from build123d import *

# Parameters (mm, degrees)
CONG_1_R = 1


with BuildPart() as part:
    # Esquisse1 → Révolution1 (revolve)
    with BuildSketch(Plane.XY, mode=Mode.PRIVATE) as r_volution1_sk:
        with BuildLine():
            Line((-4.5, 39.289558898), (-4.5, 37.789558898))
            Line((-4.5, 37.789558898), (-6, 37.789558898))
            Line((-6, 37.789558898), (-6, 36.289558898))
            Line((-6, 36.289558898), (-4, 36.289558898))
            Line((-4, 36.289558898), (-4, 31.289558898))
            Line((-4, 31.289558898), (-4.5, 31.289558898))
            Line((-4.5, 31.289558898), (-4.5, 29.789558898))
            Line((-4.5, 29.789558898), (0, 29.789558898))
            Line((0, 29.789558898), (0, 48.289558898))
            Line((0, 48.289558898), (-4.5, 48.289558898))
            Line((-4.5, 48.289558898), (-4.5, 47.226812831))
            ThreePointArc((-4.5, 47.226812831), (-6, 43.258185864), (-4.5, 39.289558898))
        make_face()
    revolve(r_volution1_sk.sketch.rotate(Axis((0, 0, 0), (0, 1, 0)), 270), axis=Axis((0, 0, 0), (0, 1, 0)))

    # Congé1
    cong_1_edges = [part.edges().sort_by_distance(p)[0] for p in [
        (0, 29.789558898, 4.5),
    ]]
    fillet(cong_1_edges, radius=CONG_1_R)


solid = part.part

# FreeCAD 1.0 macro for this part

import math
import FreeCAD as App
import Part
import Sketcher
Q = App.Units.Quantity


def edges_at(feature, points):
    """Names of the edges that pass closest to the given points."""
    edges = feature.Shape.Edges
    near = lambda p: min(range(len(edges)), key=lambda i: edges[i].distToShape(Part.Vertex(*p))[0])
    return sorted({f"Edge{near(p) + 1}" for p in points})

doc = App.newDocument("Part")
body = doc.addObject("PartDesign::Body", "Body")

sketch1 = body.newObject("Sketcher::SketchObject", "Sketch")
sketch1.AttachmentSupport = (doc.getObject("XY_Plane"), [""])
sketch1.MapMode = "FlatFace"
sketch1.addGeometry([
    Part.LineSegment(App.Vector(-4.5, 39.3, 0), App.Vector(-4.5, 37.8, 0)),
    Part.LineSegment(App.Vector(-4.5, 37.8, 0), App.Vector(-6, 37.8, 0)),
    Part.LineSegment(App.Vector(-6, 37.8, 0), App.Vector(-6, 36.3, 0)),
    Part.LineSegment(App.Vector(-6, 36.3, 0), App.Vector(-4, 36.3, 0)),
    Part.LineSegment(App.Vector(-4, 36.3, 0), App.Vector(-4, 31.3, 0)),
    Part.LineSegment(App.Vector(-4, 31.3, 0), App.Vector(-4.5, 31.3, 0)),
    Part.LineSegment(App.Vector(-4.5, 31.3, 0), App.Vector(-4.5, 29.8, 0)),
    Part.LineSegment(App.Vector(-4.5, 29.8, 0), App.Vector(0, 29.8, 0)),
    Part.LineSegment(App.Vector(0, 29.8, 0), App.Vector(0, 48.3, 0)),
    Part.LineSegment(App.Vector(0, 48.3, 0), App.Vector(-4.5, 48.3, 0)),
    Part.LineSegment(App.Vector(-4.5, 48.3, 0), App.Vector(-4.5, 47.2, 0)),
    Part.ArcOfCircle(Part.Circle(App.Vector(0, 43.3, 0), App.Vector(0, 0, 1), 6), math.radians(139), math.radians(221)),
], False)
sketch1.addConstraint([
    Sketcher.Constraint("Coincident", 0, 2, 1, 1),
    Sketcher.Constraint("Coincident", 1, 2, 2, 1),
    Sketcher.Constraint("Coincident", 2, 2, 3, 1),
    Sketcher.Constraint("Coincident", 3, 2, 4, 1),
    Sketcher.Constraint("Coincident", 4, 2, 5, 1),
    Sketcher.Constraint("Coincident", 5, 2, 6, 1),
    Sketcher.Constraint("Coincident", 6, 2, 7, 1),
    Sketcher.Constraint("Coincident", 7, 2, 8, 1),
    Sketcher.Constraint("Coincident", 8, 2, 9, 1),
    Sketcher.Constraint("Coincident", 9, 2, 10, 1),
    Sketcher.Constraint("Coincident", 10, 2, 11, 1),
    Sketcher.Constraint("Coincident", 11, 2, 0, 1),
    Sketcher.Constraint("Vertical", 0),
    Sketcher.Constraint("Horizontal", 1),
    Sketcher.Constraint("Vertical", 2),
    Sketcher.Constraint("Horizontal", 3),
    Sketcher.Constraint("Vertical", 4),
    Sketcher.Constraint("Horizontal", 5),
    Sketcher.Constraint("Vertical", 6),
    Sketcher.Constraint("Horizontal", 7),
    Sketcher.Constraint("Vertical", 8),
    Sketcher.Constraint("Horizontal", 9),
    Sketcher.Constraint("Vertical", 10),
    Sketcher.Constraint("PointOnObject", 11, 3, -2),
    Sketcher.Constraint("PointOnObject", 7, 2, -2),
    Sketcher.Constraint("Vertical", 0, 2, 5, 2),
    Sketcher.Constraint("Vertical", 6, 2, 9, 2),
    Sketcher.Constraint("Equal", 1, 0),
    Sketcher.Constraint("Equal", 0, 2),
    Sketcher.Constraint("Equal", 2, 6),
    Sketcher.Constraint("Radius", 11, Q("6 mm")),
    Sketcher.Constraint("DistanceX", 3, 1, 3, 2, Q("2 mm")),
    Sketcher.Constraint("DistanceY", 4, 2, 4, 1, Q("5 mm")),
    Sketcher.Constraint("DistanceX", 1, 2, 1, 1, Q("1.5 mm")),
    Sketcher.Constraint("DistanceX", 7, 1, 7, 2, Q("4.5 mm")),
    Sketcher.Constraint("DistanceY", 8, 1, 8, 2, Q("18.5 mm")),
    Sketcher.Constraint("DistanceY", -1, 1, 0, 2, Q("37.789559 mm")),
])
revolution = body.newObject("PartDesign::Revolution", "Revolution")
revolution.Profile = sketch1
revolution.ReferenceAxis = (sketch1, ["V_Axis"])
revolution.Angle = 360
doc.recompute()

fillet = body.newObject("PartDesign::Fillet", "Fillet")
fillet.Base = (revolution, edges_at(revolution, [(0, 29.79, 4.5)]))
fillet.Radius = 1

doc.recompute()
